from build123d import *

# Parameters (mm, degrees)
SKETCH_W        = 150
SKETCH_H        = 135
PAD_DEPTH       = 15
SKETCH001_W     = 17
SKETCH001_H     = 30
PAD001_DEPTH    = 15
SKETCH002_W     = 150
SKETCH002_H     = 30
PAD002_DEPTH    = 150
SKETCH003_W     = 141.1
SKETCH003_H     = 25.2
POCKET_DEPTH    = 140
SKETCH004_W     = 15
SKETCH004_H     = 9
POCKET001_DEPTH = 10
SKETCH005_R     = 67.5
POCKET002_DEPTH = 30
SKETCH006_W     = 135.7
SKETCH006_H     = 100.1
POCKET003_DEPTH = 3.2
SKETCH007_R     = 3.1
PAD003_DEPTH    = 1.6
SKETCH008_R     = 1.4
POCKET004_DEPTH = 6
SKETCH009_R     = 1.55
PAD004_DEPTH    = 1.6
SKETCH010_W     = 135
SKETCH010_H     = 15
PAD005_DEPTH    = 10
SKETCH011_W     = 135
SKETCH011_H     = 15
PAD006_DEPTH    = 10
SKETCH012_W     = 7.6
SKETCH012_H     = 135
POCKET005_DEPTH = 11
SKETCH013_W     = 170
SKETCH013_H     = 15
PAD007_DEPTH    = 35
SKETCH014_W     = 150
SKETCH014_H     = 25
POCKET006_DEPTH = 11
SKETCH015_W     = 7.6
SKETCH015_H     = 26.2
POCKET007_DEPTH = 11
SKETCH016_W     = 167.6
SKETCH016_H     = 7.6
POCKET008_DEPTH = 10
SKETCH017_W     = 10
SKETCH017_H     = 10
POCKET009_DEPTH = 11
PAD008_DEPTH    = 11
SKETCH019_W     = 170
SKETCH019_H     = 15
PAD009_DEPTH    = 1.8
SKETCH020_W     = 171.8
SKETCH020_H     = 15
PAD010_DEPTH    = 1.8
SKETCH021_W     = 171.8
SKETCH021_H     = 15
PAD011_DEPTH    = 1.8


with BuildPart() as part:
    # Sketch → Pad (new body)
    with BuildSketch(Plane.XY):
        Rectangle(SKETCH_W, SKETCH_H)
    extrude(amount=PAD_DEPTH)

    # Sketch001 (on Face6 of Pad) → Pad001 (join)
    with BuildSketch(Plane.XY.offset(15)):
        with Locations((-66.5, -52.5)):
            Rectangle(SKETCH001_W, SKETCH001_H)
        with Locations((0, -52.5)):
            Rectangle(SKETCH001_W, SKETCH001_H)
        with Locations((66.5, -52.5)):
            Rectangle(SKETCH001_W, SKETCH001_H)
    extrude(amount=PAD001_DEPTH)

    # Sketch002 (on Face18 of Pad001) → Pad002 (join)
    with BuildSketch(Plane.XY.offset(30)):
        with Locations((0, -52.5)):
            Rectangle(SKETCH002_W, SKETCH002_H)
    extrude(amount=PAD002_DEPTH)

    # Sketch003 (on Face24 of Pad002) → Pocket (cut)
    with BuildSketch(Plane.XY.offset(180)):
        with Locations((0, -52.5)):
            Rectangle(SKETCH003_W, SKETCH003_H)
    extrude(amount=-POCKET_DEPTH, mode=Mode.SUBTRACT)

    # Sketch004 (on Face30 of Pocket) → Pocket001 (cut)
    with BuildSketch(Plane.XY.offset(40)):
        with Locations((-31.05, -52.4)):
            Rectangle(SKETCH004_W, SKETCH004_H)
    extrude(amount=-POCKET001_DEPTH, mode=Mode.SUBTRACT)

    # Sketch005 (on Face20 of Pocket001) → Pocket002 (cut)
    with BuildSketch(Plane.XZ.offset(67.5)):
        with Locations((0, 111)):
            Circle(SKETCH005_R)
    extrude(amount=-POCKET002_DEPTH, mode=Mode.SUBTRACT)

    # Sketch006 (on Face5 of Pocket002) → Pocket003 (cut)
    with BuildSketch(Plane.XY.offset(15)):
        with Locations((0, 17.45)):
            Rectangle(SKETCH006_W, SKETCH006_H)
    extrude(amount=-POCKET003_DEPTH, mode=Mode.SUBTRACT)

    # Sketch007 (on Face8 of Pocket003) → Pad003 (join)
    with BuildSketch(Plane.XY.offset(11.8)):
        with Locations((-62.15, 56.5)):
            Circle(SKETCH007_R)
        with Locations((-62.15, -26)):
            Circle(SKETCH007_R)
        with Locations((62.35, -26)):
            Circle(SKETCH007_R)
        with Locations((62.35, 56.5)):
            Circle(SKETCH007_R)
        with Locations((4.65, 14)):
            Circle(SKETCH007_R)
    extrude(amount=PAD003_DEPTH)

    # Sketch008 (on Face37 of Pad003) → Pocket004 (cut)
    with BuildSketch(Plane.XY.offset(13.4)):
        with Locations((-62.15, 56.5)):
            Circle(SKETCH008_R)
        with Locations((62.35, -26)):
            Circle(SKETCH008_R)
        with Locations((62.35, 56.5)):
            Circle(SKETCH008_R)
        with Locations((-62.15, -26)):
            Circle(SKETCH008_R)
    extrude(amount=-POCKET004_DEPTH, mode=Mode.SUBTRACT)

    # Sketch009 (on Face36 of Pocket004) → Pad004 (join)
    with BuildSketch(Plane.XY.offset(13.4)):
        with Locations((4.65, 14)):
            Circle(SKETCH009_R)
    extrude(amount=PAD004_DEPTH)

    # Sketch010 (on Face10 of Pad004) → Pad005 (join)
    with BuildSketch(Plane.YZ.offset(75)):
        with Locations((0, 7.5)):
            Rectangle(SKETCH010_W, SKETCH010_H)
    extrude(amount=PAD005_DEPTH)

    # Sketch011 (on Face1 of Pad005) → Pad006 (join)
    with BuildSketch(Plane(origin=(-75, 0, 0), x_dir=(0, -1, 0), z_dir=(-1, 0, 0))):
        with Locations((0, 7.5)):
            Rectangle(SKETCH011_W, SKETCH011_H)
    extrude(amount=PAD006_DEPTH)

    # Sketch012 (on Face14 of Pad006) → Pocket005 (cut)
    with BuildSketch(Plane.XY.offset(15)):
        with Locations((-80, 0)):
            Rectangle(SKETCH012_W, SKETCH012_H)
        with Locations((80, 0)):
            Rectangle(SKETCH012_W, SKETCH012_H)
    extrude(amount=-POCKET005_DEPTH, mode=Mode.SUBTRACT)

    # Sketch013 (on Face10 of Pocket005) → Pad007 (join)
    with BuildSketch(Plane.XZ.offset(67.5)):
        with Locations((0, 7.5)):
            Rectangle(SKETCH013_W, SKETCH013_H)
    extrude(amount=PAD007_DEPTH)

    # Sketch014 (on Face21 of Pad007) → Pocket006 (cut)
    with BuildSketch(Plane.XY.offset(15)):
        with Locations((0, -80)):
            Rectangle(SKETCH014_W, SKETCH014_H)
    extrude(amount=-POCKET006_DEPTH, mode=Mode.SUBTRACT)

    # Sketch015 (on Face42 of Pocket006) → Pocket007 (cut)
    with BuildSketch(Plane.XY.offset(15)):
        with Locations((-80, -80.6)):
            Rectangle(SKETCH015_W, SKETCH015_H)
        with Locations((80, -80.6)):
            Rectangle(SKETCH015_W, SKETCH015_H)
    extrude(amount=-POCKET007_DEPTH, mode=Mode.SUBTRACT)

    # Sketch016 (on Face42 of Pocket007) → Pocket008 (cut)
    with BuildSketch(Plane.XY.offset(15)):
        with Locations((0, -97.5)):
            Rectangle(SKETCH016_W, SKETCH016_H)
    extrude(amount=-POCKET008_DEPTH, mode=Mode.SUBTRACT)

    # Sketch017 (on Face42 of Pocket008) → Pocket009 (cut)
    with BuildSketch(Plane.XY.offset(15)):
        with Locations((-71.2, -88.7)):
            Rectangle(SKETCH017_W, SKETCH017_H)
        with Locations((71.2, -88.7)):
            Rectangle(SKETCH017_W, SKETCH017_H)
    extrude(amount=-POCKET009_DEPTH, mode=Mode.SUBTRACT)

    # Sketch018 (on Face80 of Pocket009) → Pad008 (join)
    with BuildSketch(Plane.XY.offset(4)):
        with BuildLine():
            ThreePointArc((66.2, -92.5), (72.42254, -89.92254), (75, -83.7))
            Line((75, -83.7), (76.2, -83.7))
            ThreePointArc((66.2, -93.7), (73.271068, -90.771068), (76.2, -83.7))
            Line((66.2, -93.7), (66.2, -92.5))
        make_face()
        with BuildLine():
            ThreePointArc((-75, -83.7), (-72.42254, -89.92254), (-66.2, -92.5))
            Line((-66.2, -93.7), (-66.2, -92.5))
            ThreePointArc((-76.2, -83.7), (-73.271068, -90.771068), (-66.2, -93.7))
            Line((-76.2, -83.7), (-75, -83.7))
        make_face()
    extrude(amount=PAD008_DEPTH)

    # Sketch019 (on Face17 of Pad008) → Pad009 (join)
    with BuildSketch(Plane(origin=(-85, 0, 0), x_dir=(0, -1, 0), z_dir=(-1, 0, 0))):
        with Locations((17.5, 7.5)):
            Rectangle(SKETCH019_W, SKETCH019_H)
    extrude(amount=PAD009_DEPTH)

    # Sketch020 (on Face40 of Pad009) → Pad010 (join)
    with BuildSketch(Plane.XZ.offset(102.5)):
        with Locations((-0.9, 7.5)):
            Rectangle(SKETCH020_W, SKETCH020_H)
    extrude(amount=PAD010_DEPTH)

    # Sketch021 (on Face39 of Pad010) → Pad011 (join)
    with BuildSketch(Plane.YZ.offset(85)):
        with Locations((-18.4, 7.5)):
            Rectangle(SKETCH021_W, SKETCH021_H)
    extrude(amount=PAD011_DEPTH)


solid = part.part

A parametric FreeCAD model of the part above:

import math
import FreeCAD as App
import Part
import Sketcher

V = App.Vector
Q = App.Units.Quantity

doc = App.newDocument("Part")
params = doc.addObject("Spreadsheet::Sheet", "Params")
for row, (alias, value) in enumerate([
    ("sketch1_width", "150 mm"),
    ("sketch1_height", "135 mm"),
    ("pad1_length", "15 mm"),
    ("sketch2_width", "17 mm"),
    ("sketch2_height", "30 mm"),
    ("pad2_length", "15 mm"),
    ("sketch3_width", "150 mm"),
    ("sketch3_height", "30 mm"),
    ("pad3_length", "150 mm"),
    ("sketch4_width", "141.1 mm"),
    ("sketch4_height", "25.2 mm"),
    ("pocket1_length", "140 mm"),
    ("sketch5_width", "15 mm"),
    ("sketch5_height", "9 mm"),
    ("pocket2_length", "10 mm"),
    ("sketch6_diameter", "135 mm"),
    ("pocket3_length", "30 mm"),
    ("sketch7_width", "135.7 mm"),
    ("sketch7_height", "100.1 mm"),
    ("pocket4_length", "3.2 mm"),
    ("sketch8_diameter", "6.2 mm"),
    ("pad4_length", "1.6 mm"),
    ("sketch9_diameter", "2.8 mm"),
    ("pocket5_length", "6 mm"),
    ("sketch10_diameter", "3.1 mm"),
    ("pad5_length", "1.6 mm"),
    ("sketch11_width", "135 mm"),
    ("sketch11_height", "15 mm"),
    ("pad6_length", "10 mm"),
    ("sketch12_width", "135 mm"),
    ("sketch12_height", "15 mm"),
    ("pad7_length", "10 mm"),
    ("sketch13_height", "135 mm"),
    ("sketch13_width", "7.6 mm"),
    ("pocket6_length", "11 mm"),
    ("sketch14_width", "170 mm"),
    ("sketch14_height", "15 mm"),
    ("pad8_length", "35 mm"),
    ("sketch15_width", "150 mm"),
    ("sketch15_height", "25 mm"),
    ("pocket7_length", "11 mm"),
    ("sketch16_width", "7.6 mm"),
    ("sketch16_height", "26.2 mm"),
    ("pocket8_length", "11 mm"),
    ("sketch17_width", "167.6 mm"),
    ("sketch17_height", "7.6 mm"),
    ("pocket9_length", "10 mm"),
    ("sketch18_width", "10 mm"),
    ("pocket10_length", "11 mm"),
    ("sketch19_radius", "9.999999 mm"),
    ("sketch19_radius2", "8.799999 mm"),
    ("pad9_length", "11 mm"),
    ("sketch20_width", "170 mm"),
    ("sketch20_height", "15 mm"),
    ("pad10_length", "1.8 mm"),
    ("sketch21_height", "15 mm"),
    ("sketch21_width", "171.8 mm"),
    ("pad11_length", "1.8 mm"),
    ("sketch22_height", "15 mm"),
    ("sketch22_width", "171.8 mm"),
    ("pad12_length", "1.8 mm"),
], start=1):
    params.set(f"A{row}", alias)
    params.set(f"B{row}", "=" + value)
    params.setAlias(f"B{row}", alias)

body = doc.addObject("PartDesign::Body", "Body")

sketch1 = body.newObject("Sketcher::SketchObject", "Sketch")
sketch1.AttachmentSupport = (doc.getObject("XY_Plane"), [""])
sketch1.MapMode = "FlatFace"
sketch1.addGeometry([
    Part.LineSegment(V(-75, 67.5, 0), V(-75, -67.5, 0)),
    Part.LineSegment(V(-75, -67.5, 0), V(75, -67.5, 0)),
    Part.LineSegment(V(75, -67.5, 0), V(75, 67.5, 0)),
    Part.LineSegment(V(75, 67.5, 0), V(-75, 67.5, 0)),
], False)
sketch1.addConstraint([
    Sketcher.Constraint("Coincident", 0, 2, 1, 1),
    Sketcher.Constraint("Coincident", 1, 2, 2, 1),
    Sketcher.Constraint("Coincident", 2, 2, 3, 1),
    Sketcher.Constraint("Coincident", 3, 2, 0, 1),
    Sketcher.Constraint("Vertical", 0),
    Sketcher.Constraint("Horizontal", 1),
    Sketcher.Constraint("Vertical", 2),
    Sketcher.Constraint("Horizontal", 3),
    Sketcher.Constraint("Symmetric", 0, 2, 2, 2, -1, 1),
    Sketcher.Constraint("DistanceX", 1, 1, 1, 2, Q("150 mm")),
    Sketcher.Constraint("DistanceY", 0, 2, 0, 1, Q("135 mm")),
])
sketch1.setExpression("Constraints[9]", "Params.sketch1_width")
sketch1.setExpression("Constraints[10]", "Params.sketch1_height")
pad1 = body.newObject("PartDesign::Pad", "Pad")
pad1.Profile = sketch1
pad1.setExpression("Length", "Params.pad1_length")

sketch2 = body.newObject("Sketcher::SketchObject", "Sketch001")
sketch2.AttachmentSupport = (doc.getObject("XY_Plane"), [""])
sketch2.MapMode = "FlatFace"
sketch2.AttachmentOffset = App.Placement(V(0, 0, 15), App.Rotation())
sketch2.addGeometry([
    Part.LineSegment(V(-75, -37.5, 0), V(-75, -67.5, 0)),
    Part.LineSegment(V(-75, -67.5, 0), V(-58, -67.5, 0)),
    Part.LineSegment(V(-58, -67.5, 0), V(-58, -37.5, 0)),
    Part.LineSegment(V(-58, -37.5, 0), V(-75, -37.5, 0)),
    Part.LineSegment(V(-8.5, -37.5, 0), V(-8.5, -67.5, 0)),
    Part.LineSegment(V(-8.5, -67.5, 0), V(8.5, -67.5, 0)),
    Part.LineSegment(V(8.5, -67.5, 0), V(8.5, -37.5, 0)),
    Part.LineSegment(V(8.5, -37.5, 0), V(-8.5, -37.5, 0)),
    Part.LineSegment(V(58, -37.5, 0), V(58, -67.5, 0)),
    Part.LineSegment(V(58, -67.5, 0), V(75, -67.5, 0)),
    Part.LineSegment(V(75, -67.5, 0), V(75, -37.5, 0)),
    Part.LineSegment(V(75, -37.5, 0), V(58, -37.5, 0)),
], False)
sketch2.addConstraint([
    Sketcher.Constraint("Coincident", 0, 2, 1, 1),
    Sketcher.Constraint("Coincident", 1, 2, 2, 1),
    Sketcher.Constraint("Coincident", 2, 2, 3, 1),
    Sketcher.Constraint("Coincident", 3, 2, 0, 1),
    Sketcher.Constraint("Coincident", 4, 2, 5, 1),
    Sketcher.Constraint("Coincident", 5, 2, 6, 1),
    Sketcher.Constraint("Coincident", 6, 2, 7, 1),
    Sketcher.Constraint("Coincident", 7, 2, 4, 1),
    Sketcher.Constraint("Coincident", 8, 2, 9, 1),
    Sketcher.Constraint("Coincident", 9, 2, 10, 1),
    Sketcher.Constraint("Coincident", 10, 2, 11, 1),
    Sketcher.Constraint("Coincident", 11, 2, 8, 1),
    Sketcher.Constraint("Vertical", 0),
    Sketcher.Constraint("Horizontal", 1),
    Sketcher.Constraint("Vertical", 2),
    Sketcher.Constraint("Horizontal", 3),
    Sketcher.Constraint("Vertical", 4),
    Sketcher.Constraint("Horizontal", 5),
    Sketcher.Constraint("Vertical", 6),
    Sketcher.Constraint("Horizontal", 7),
    Sketcher.Constraint("Vertical", 8),
    Sketcher.Constraint("Horizontal", 9),
    Sketcher.Constraint("Vertical", 10),
    Sketcher.Constraint("Horizontal", 11),
    Sketcher.Constraint("Symmetric", 1, 2, 8, 2, -2),
    Sketcher.Constraint("Symmetric", 3, 2, 10, 2, -2),
    Sketcher.Constraint("Horizontal", 1, 2, 4, 2),
    Sketcher.Constraint("Horizontal", 3, 2, 6, 2),
    Sketcher.Constraint("Equal", 3, 5),
    Sketcher.Constraint("DistanceX", 1, 1, 1, 2, Q("17 mm")),
    Sketcher.Constraint("DistanceY", 0, 2, 0, 1, Q("30 mm")),
    Sketcher.Constraint("DistanceX", 0, 2, -1, 1, Q("75 mm")),
    Sketcher.Constraint("DistanceY", 0, 2, -1, 1, Q("67.5 mm")),
    Sketcher.Constraint("DistanceX", 4, 2, -1, 1, Q("8.5 mm")),
])
sketch2.setExpression("Constraints[29]", "Params.sketch2_width")
sketch2.setExpression("Constraints[30]", "Params.sketch2_height")
pad2 = body.newObject("PartDesign::Pad", "Pad001")
pad2.Profile = sketch2
pad2.setExpression("Length", "Params.pad2_length")

sketch3 = body.newObject("Sketcher::SketchObject", "Sketch002")
sketch3.AttachmentSupport = (doc.getObject("XY_Plane"), [""])
sketch3.MapMode = "FlatFace"
sketch3.AttachmentOffset = App.Placement(V(0, 0, 30), App.Rotation())
sketch3.addGeometry([
    Part.LineSegment(V(-75, -37.5, 0), V(-75, -67.5, 0)),
    Part.LineSegment(V(-75, -67.5, 0), V(75, -67.5, 0)),
    Part.LineSegment(V(75, -67.5, 0), V(75, -37.5, 0)),
    Part.LineSegment(V(75, -37.5, 0), V(-75, -37.5, 0)),
], False)
sketch3.addConstraint([
    Sketcher.Constraint("Coincident", 0, 2, 1, 1),
    Sketcher.Constraint("Coincident", 1, 2, 2, 1),
    Sketcher.Constraint("Coincident", 2, 2, 3, 1),
    Sketcher.Constraint("Coincident", 3, 2, 0, 1),
    Sketcher.Constraint("Vertical", 0),
    Sketcher.Constraint("Horizontal", 1),
    Sketcher.Constraint("Vertical", 2),
    Sketcher.Constraint("Horizontal", 3),
    Sketcher.Constraint("DistanceX", 1, 1, 1, 2, Q("150 mm")),
    Sketcher.Constraint("DistanceY", 0, 2, 0, 1, Q("30 mm")),
    Sketcher.Constraint("DistanceX", 0, 2, -1, 1, Q("75 mm")),
    Sketcher.Constraint("DistanceY", 0, 2, -1, 1, Q("67.5 mm")),
])
sketch3.setExpression("Constraints[8]", "Params.sketch3_width")
sketch3.setExpression("Constraints[9]", "Params.sketch3_height")
pad3 = body.newObject("PartDesign::Pad", "Pad002")
pad3.Profile = sketch3
pad3.setExpression("Length", "Params.pad3_length")

sketch4 = body.newObject("Sketcher::SketchObject", "Sketch003")
sketch4.AttachmentSupport = (doc.getObject("XY_Plane"), [""])
sketch4.MapMode = "FlatFace"
sketch4.AttachmentOffset = App.Placement(V(0, 0, 180), App.Rotation())
sketch4.addGeometry([
    Part.LineSegment(V(-70.55, -39.9, 0), V(-70.55, -65.1, 0)),
    Part.LineSegment(V(-70.55, -65.1, 0), V(70.55, -65.1, 0)),
    Part.LineSegment(V(70.55, -65.1, 0), V(70.55, -39.9, 0)),
    Part.LineSegment(V(70.55, -39.9, 0), V(-70.55, -39.9, 0)),
], False)
sketch4.addConstraint([
    Sketcher.Constraint("Coincident", 0, 2, 1, 1),
    Sketcher.Constraint("Coincident", 1, 2, 2, 1),
    Sketcher.Constraint("Coincident", 2, 2, 3, 1),
    Sketcher.Constraint("Coincident", 3, 2, 0, 1),
    Sketcher.Constraint("Vertical", 0),
    Sketcher.Constraint("Horizontal", 1),
    Sketcher.Constraint("Vertical", 2),
    Sketcher.Constraint("Horizontal", 3),
    Sketcher.Constraint("DistanceX", 1, 1, 1, 2, Q("141.1 mm")),
    Sketcher.Constraint("DistanceY", 0, 2, 0, 1, Q("25.2 mm")),
    Sketcher.Constraint("DistanceY", 0, 2, -1, 1, Q("65.1 mm")),
    Sketcher.Constraint("DistanceX", 0, 2, -1, 1, Q("70.55 mm")),
])
sketch4.setExpression("Constraints[8]", "Params.sketch4_width")
sketch4.setExpression("Constraints[9]", "Params.sketch4_height")
pocket1 = body.newObject("PartDesign::Pocket", "Pocket")
pocket1.Profile = sketch4
pocket1.setExpression("Length", "Params.pocket1_length")

sketch5 = body.newObject("Sketcher::SketchObject", "Sketch004")
sketch5.AttachmentSupport = (doc.getObject("XY_Plane"), [""])
sketch5.MapMode = "FlatFace"
sketch5.AttachmentOffset = App.Placement(V(0, 0, 40), App.Rotation())
sketch5.addGeometry([
    Part.LineSegment(V(-38.55, -47.9, 0), V(-38.55, -56.9, 0)),
    Part.LineSegment(V(-38.55, -56.9, 0), V(-23.55, -56.9, 0)),
    Part.LineSegment(V(-23.55, -56.9, 0), V(-23.55, -47.9, 0)),
    Part.LineSegment(V(-23.55, -47.9, 0), V(-38.55, -47.9, 0)),
], False)
sketch5.addConstraint([
    Sketcher.Constraint("Coincident", 0, 2, 1, 1),
    Sketcher.Constraint("Coincident", 1, 2, 2, 1),
    Sketcher.Constraint("Coincident", 2, 2, 3, 1),
    Sketcher.Constraint("Coincident", 3, 2, 0, 1),
    Sketcher.Constraint("Vertical", 0),
    Sketcher.Constraint("Horizontal", 1),
    Sketcher.Constraint("Vertical", 2),
    Sketcher.Constraint("Horizontal", 3),
    Sketcher.Constraint("DistanceX", 1, 1, 1, 2, Q("15 mm")),
    Sketcher.Constraint("DistanceY", 0, 2, 0, 1, Q("9 mm")),
    Sketcher.Constraint("DistanceY", 0, 2, -1, 1, Q("56.9 mm")),
    Sketcher.Constraint("DistanceX", 0, 2, -1, 1, Q("38.55 mm")),
])
sketch5.setExpression("Constraints[8]", "Params.sketch5_width")
sketch5.setExpression("Constraints[9]", "Params.sketch5_height")
pocket2 = body.newObject("PartDesign::Pocket", "Pocket001")
pocket2.Profile = sketch5
pocket2.setExpression("Length", "Params.pocket2_length")

sketch6 = body.newObject("Sketcher::SketchObject", "Sketch005")
sketch6.AttachmentSupport = (doc.getObject("XZ_Plane"), [""])
sketch6.MapMode = "FlatFace"
sketch6.AttachmentOffset = App.Placement(V(0, 0, 67.5), App.Rotation())
sketch6.addGeometry(Part.Circle(V(0, 111, 0), V(0, 0, 1), 67.5), False)
sketch6.addConstraint([
    Sketcher.Constraint("PointOnObject", 0, 3, -2),
    Sketcher.Constraint("Diameter", 0, Q("135 mm")),
    Sketcher.Constraint("DistanceY", -1, 1, 0, 3, Q("111 mm")),
])
sketch6.setExpression("Constraints[1]", "Params.sketch6_diameter")
pocket3 = body.newObject("PartDesign::Pocket", "Pocket002")
pocket3.Profile = sketch6
pocket3.setExpression("Length", "Params.pocket3_length")

sketch7 = body.newObject("Sketcher::SketchObject", "Sketch006")
sketch7.AttachmentSupport = (doc.getObject("XY_Plane"), [""])
sketch7.MapMode = "FlatFace"
sketch7.AttachmentOffset = App.Placement(V(0, 0, 15), App.Rotation())
sketch7.addGeometry([
    Part.LineSegment(V(-67.85, 67.5, 0), V(-67.85, -32.6, 0)),
    Part.LineSegment(V(-67.85, -32.6, 0), V(67.85, -32.6, 0)),
    Part.LineSegment(V(67.85, -32.6, 0), V(67.85, 67.5, 0)),
    Part.LineSegment(V(67.85, 67.5, 0), V(-67.85, 67.5, 0)),
], False)
sketch7.addConstraint([
    Sketcher.Constraint("Coincident", 0, 2, 1, 1),
    Sketcher.Constraint("Coincident", 1, 2, 2, 1),
    Sketcher.Constraint("Coincident", 2, 2, 3, 1),
    Sketcher.Constraint("Coincident", 3, 2, 0, 1),
    Sketcher.Constraint("Vertical", 0),
    Sketcher.Constraint("Horizontal", 1),
    Sketcher.Constraint("Vertical", 2),
    Sketcher.Constraint("Horizontal", 3),
    Sketcher.Constraint("DistanceX", 1, 1, 1, 2, Q("135.7 mm")),
    Sketcher.Constraint("DistanceY", 0, 2, 0, 1, Q("100.1 mm")),
    Sketcher.Constraint("DistanceY", 0, 2, -1, 1, Q("32.6 mm")),
    Sketcher.Constraint("DistanceX", 0, 2, -1, 1, Q("67.85 mm")),
])
sketch7.setExpression("Constraints[8]", "Params.sketch7_width")
sketch7.setExpression("Constraints[9]", "Params.sketch7_height")
pocket4 = body.newObject("PartDesign::Pocket", "Pocket003")
pocket4.Profile = sketch7
pocket4.setExpression("Length", "Params.pocket4_length")

sketch8 = body.newObject("Sketcher::SketchObject", "Sketch007")
sketch8.AttachmentSupport = (doc.getObject("XY_Plane"), [""])
sketch8.MapMode = "FlatFace"
sketch8.AttachmentOffset = App.Placement(V(0, 0, 11.8), App.Rotation())
sketch8.addGeometry([
    Part.Circle(V(-62.15, 56.5, 0), V(0, 0, 1), 3.1),
    Part.Circle(V(-62.15, -26, 0), V(0, 0, 1), 3.1),
    Part.Circle(V(62.35, -26, 0), V(0, 0, 1), 3.1),
    Part.Circle(V(62.35, 56.5, 0), V(0, 0, 1), 3.1),
    Part.Circle(V(4.65, 14, 0), V(0, 0, 1), 3.1),
], False)
sketch8.addConstraint([
    Sketcher.Constraint("Equal", 0, 1),
    Sketcher.Constraint("Equal", 1, 2),
    Sketcher.Constraint("Equal", 2, 3),
    Sketcher.Constraint("Equal", 3, 4),
    Sketcher.Constraint("Horizontal", 1, 3, 2, 3),
    Sketcher.Constraint("Horizontal", 0, 3, 3, 3),
    Sketcher.Constraint("Vertical", 0, 3, 1, 3),
    Sketcher.Constraint("Vertical", 2, 3, 3, 3),
    Sketcher.Constraint("Diameter", 0, Q("6.2 mm")),
    Sketcher.Constraint("DistanceY", 1, 3, -1, 1, Q("26 mm")),
    Sketcher.Constraint("DistanceY", -1, 1, 4, 3, Q("14 mm")),
    Sketcher.Constraint("DistanceY", -1, 1, 0, 3, Q("56.5 mm")),
    Sketcher.Constraint("DistanceX", 1, 3, 2, 3, Q("124.5 mm")),
    Sketcher.Constraint("DistanceX", 4, 3, 2, 3, Q("57.7 mm")),
    Sketcher.Constraint("DistanceX", 0, 3, -1, 1, Q("62.15 mm")),
])
sketch8.setExpression("Constraints[8]", "Params.sketch8_diameter")
pad4 = body.newObject("PartDesign::Pad", "Pad003")
pad4.Profile = sketch8
pad4.setExpression("Length", "Params.pad4_length")

sketch9 = body.newObject("Sketcher::SketchObject", "Sketch008")
sketch9.AttachmentSupport = (doc.getObject("XY_Plane"), [""])
sketch9.MapMode = "FlatFace"
sketch9.AttachmentOffset = App.Placement(V(0, 0, 13.4), App.Rotation())
sketch9.addGeometry([
    Part.Circle(V(-62.15, 56.5, 0), V(0, 0, 1), 1.4),
    Part.Circle(V(62.35, -26, 0), V(0, 0, 1), 1.4),
    Part.Circle(V(62.35, 56.5, 0), V(0, 0, 1), 1.4),
    Part.Circle(V(-62.15, -26, 0), V(0, 0, 1), 1.4),
], False)
sketch9.addConstraint([
    Sketcher.Constraint("Equal", 0, 1),
    Sketcher.Constraint("Equal", 1, 2),
    Sketcher.Constraint("Equal", 2, 3),
    Sketcher.Constraint("Horizontal", 0, 3, 2, 3),
    Sketcher.Constraint("Horizontal", 1, 3, 3, 3),
    Sketcher.Constraint("Vertical", 1, 3, 2, 3),
    Sketcher.Constraint("Vertical", 0, 3, 3, 3),
    Sketcher.Constraint("Diameter", 0, Q("2.8 mm")),
    Sketcher.Constraint("DistanceY", 1, 3, -1, 1, Q("26 mm")),
    Sketcher.Constraint("DistanceY", -1, 1, 0, 3, Q("56.5 mm")),
    Sketcher.Constraint("DistanceX", 0, 3, 1, 3, Q("124.5 mm")),
    Sketcher.Constraint("DistanceX", 0, 3, -1, 1, Q("62.15 mm")),
])
sketch9.setExpression("Constraints[7]", "Params.sketch9_diameter")
pocket5 = body.newObject("PartDesign::Pocket", "Pocket004")
pocket5.Profile = sketch9
pocket5.setExpression("Length", "Params.pocket5_length")

sketch10 = body.newObject("Sketcher::SketchObject", "Sketch009")
sketch10.AttachmentSupport = (doc.getObject("XY_Plane"), [""])
sketch10.MapMode = "FlatFace"
sketch10.AttachmentOffset = App.Placement(V(0, 0, 13.4), App.Rotation())
sketch10.addGeometry(Part.Circle(V(4.65, 14, 0), V(0, 0, 1), 1.55), False)
sketch10.addConstraint([
    Sketcher.Constraint("Diameter", 0, Q("3.1 mm")),
    Sketcher.Constraint("DistanceY", -1, 1, 0, 3, Q("14 mm")),
    Sketcher.Constraint("DistanceX", -1, 1, 0, 3, Q("4.65 mm")),
])
sketch10.setExpression("Constraints[0]", "Params.sketch10_diameter")
pad5 = body.newObject("PartDesign::Pad", "Pad004")
pad5.Profile = sketch10
pad5.setExpression("Length", "Params.pad5_length")

sketch11 = body.newObject("Sketcher::SketchObject", "Sketch010")
sketch11.AttachmentSupport = (doc.getObject("YZ_Plane"), [""])
sketch11.MapMode = "FlatFace"
sketch11.AttachmentOffset = App.Placement(V(0, 0, 75), App.Rotation())
sketch11.addGeometry([
    Part.LineSegment(V(-67.5, 15, 0), V(-67.5, 0, 0)),
    Part.LineSegment(V(-67.5, 0, 0), V(67.5, 0, 0)),
    Part.LineSegment(V(67.5, 0, 0), V(67.5, 15, 0)),
    Part.LineSegment(V(67.5, 15, 0), V(-67.5, 15, 0)),
], False)
sketch11.addConstraint([
    Sketcher.Constraint("Coincident", 0, 2, 1, 1),
    Sketcher.Constraint("Coincident", 1, 2, 2, 1),
    Sketcher.Constraint("Coincident", 2, 2, 3, 1),
    Sketcher.Constraint("Coincident", 3, 2, 0, 1),
    Sketcher.Constraint("Vertical", 0),
    Sketcher.Constraint("Horizontal", 1),
    Sketcher.Constraint("Vertical", 2),
    Sketcher.Constraint("Horizontal", 3),
    Sketcher.Constraint("Symmetric", 0, 2, 1, 2, -1, 1),
    Sketcher.Constraint("DistanceX", 1, 1, 1, 2, Q("135 mm")),
    Sketcher.Constraint("DistanceY", 0, 2, 0, 1, Q("15 mm")),
])
sketch11.setExpression("Constraints[9]", "Params.sketch11_width")
sketch11.setExpression("Constraints[10]", "Params.sketch11_height")
pad6 = body.newObject("PartDesign::Pad", "Pad005")
pad6.Profile = sketch11
pad6.setExpression("Length", "Params.pad6_length")

sketch12 = body.newObject("Sketcher::SketchObject", "Sketch011")
sketch12.AttachmentSupport = (doc.getObject("YZ_Plane"), [""])
sketch12.MapMode = "FlatFace"
sketch12.AttachmentOffset = App.Placement(V(0, 0, -75), App.Rotation())
sketch12.addGeometry([
    Part.LineSegment(V(67.5, 15, 0), V(67.5, 0, 0)),
    Part.LineSegment(V(67.5, 0, 0), V(-67.5, 0, 0)),
    Part.LineSegment(V(-67.5, 0, 0), V(-67.5, 15, 0)),
    Part.LineSegment(V(-67.5, 15, 0), V(67.5, 15, 0)),
], False)
sketch12.addConstraint([
    Sketcher.Constraint("Coincident", 0, 2, 1, 1),
    Sketcher.Constraint("Coincident", 1, 2, 2, 1),
    Sketcher.Constraint("Coincident", 2, 2, 3, 1),
    Sketcher.Constraint("Coincident", 3, 2, 0, 1),
    Sketcher.Constraint("Vertical", 0),
    Sketcher.Constraint("Horizontal", 1),
    Sketcher.Constraint("Vertical", 2),
    Sketcher.Constraint("Horizontal", 3),
    Sketcher.Constraint("Symmetric", 0, 2, 1, 2, -1, 1),
    Sketcher.Constraint("DistanceX", 1, 2, 1, 1, Q("135 mm")),
    Sketcher.Constraint("DistanceY", 0, 2, 0, 1, Q("15 mm")),
])
sketch12.setExpression("Constraints[9]", "Params.sketch12_width")
sketch12.setExpression("Constraints[10]", "Params.sketch12_height")
pad7 = body.newObject("PartDesign::Pad", "Pad006")
pad7.Profile = sketch12
pad7.setExpression("Length", "Params.pad7_length")
pad7.Reversed = True

sketch13 = body.newObject("Sketcher::SketchObject", "Sketch012")
sketch13.AttachmentSupport = (doc.getObject("XY_Plane"), [""])
sketch13.MapMode = "FlatFace"
sketch13.AttachmentOffset = App.Placement(V(0, 0, 15), App.Rotation())
sketch13.addGeometry([
    Part.LineSegment(V(-83.8, 67.5, 0), V(-83.8, -67.5, 0)),
    Part.LineSegment(V(-83.8, -67.5, 0), V(-76.2, -67.5, 0)),
    Part.LineSegment(V(-76.2, -67.5, 0), V(-76.2, 67.5, 0)),
    Part.LineSegment(V(-76.2, 67.5, 0), V(-83.8, 67.5, 0)),
    Part.LineSegment(V(76.2, 67.5, 0), V(76.2, -67.5, 0)),
    Part.LineSegment(V(76.2, -67.5, 0), V(83.8, -67.5, 0)),
    Part.LineSegment(V(83.8, -67.5, 0), V(83.8, 67.5, 0)),
    Part.LineSegment(V(83.8, 67.5, 0), V(76.2, 67.5, 0)),
], False)
sketch13.addConstraint([
    Sketcher.Constraint("Coincident", 0, 2, 1, 1),
    Sketcher.Constraint("Coincident", 1, 2, 2, 1),
    Sketcher.Constraint("Coincident", 2, 2, 3, 1),
    Sketcher.Constraint("Coincident", 3, 2, 0, 1),
    Sketcher.Constraint("Coincident", 4, 2, 5, 1),
    Sketcher.Constraint("Coincident", 5, 2, 6, 1),
    Sketcher.Constraint("Coincident", 6, 2, 7, 1),
    Sketcher.Constraint("Coincident", 7, 2, 4, 1),
    Sketcher.Constraint("Vertical", 0),
    Sketcher.Constraint("Horizontal", 1),
    Sketcher.Constraint("Vertical", 2),
    Sketcher.Constraint("Horizontal", 3),
    Sketcher.Constraint("Vertical", 4),
    Sketcher.Constraint("Horizontal", 5),
    Sketcher.Constraint("Vertical", 6),
    Sketcher.Constraint("Horizontal", 7),
    Sketcher.Constraint("Symmetric", 2, 2, 4, 2, -1, 1),
    Sketcher.Constraint("Symmetric", 0, 2, 6, 2, -1, 1),
    Sketcher.Constraint("Horizontal", 1, 2, 4, 2),
    Sketcher.Constraint("DistanceY", 0, 2, 0, 1, Q("135 mm")),
    Sketcher.Constraint("DistanceX", 1, 1, 1, 2, Q("7.6 mm")),
    Sketcher.Constraint("DistanceX", 0, 2, 4, 2, Q("160 mm")),
])
sketch13.setExpression("Constraints[19]", "Params.sketch13_height")
sketch13.setExpression("Constraints[20]", "Params.sketch13_width")
pocket6 = body.newObject("PartDesign::Pocket", "Pocket005")
pocket6.Profile = sketch13
pocket6.setExpression("Length", "Params.pocket6_length")

sketch14 = body.newObject("Sketcher::SketchObject", "Sketch013")
sketch14.AttachmentSupport = (doc.getObject("XZ_Plane"), [""])
sketch14.MapMode = "FlatFace"
sketch14.AttachmentOffset = App.Placement(V(0, 0, 67.5), App.Rotation())
sketch14.addGeometry([
    Part.LineSegment(V(-85, 15, 0), V(-85, 0, 0)),
    Part.LineSegment(V(-85, 0, 0), V(85, 0, 0)),
    Part.LineSegment(V(85, 0, 0), V(85, 15, 0)),
    Part.LineSegment(V(85, 15, 0), V(-85, 15, 0)),
], False)
sketch14.addConstraint([
    Sketcher.Constraint("Coincident", 0, 2, 1, 1),
    Sketcher.Constraint("Coincident", 1, 2, 2, 1),
    Sketcher.Constraint("Coincident", 2, 2, 3, 1),
    Sketcher.Constraint("Coincident", 3, 2, 0, 1),
    Sketcher.Constraint("Vertical", 0),
    Sketcher.Constraint("Horizontal", 1),
    Sketcher.Constraint("Vertical", 2),
    Sketcher.Constraint("Horizontal", 3),
    Sketcher.Constraint("Symmetric", 0, 2, 1, 2, -1, 1),
    Sketcher.Constraint("DistanceX", 1, 1, 1, 2, Q("170 mm")),
    Sketcher.Constraint("DistanceY", 0, 2, 0, 1, Q("15 mm")),
])
sketch14.setExpression("Constraints[9]", "Params.sketch14_width")
sketch14.setExpression("Constraints[10]", "Params.sketch14_height")
pad8 = body.newObject("PartDesign::Pad", "Pad007")
pad8.Profile = sketch14
pad8.setExpression("Length", "Params.pad8_length")

sketch15 = body.newObject("Sketcher::SketchObject", "Sketch014")
sketch15.AttachmentSupport = (doc.getObject("XY_Plane"), [""])
sketch15.MapMode = "FlatFace"
sketch15.AttachmentOffset = App.Placement(V(0, 0, 15), App.Rotation())
sketch15.addGeometry([
    Part.LineSegment(V(-75, -67.5, 0), V(-75, -92.5, 0)),
    Part.LineSegment(V(-75, -92.5, 0), V(75, -92.5, 0)),
    Part.LineSegment(V(75, -92.5, 0), V(75, -67.5, 0)),
    Part.LineSegment(V(75, -67.5, 0), V(-75, -67.5, 0)),
], False)
sketch15.addConstraint([
    Sketcher.Constraint("Coincident", 0, 2, 1, 1),
    Sketcher.Constraint("Coincident", 1, 2, 2, 1),
    Sketcher.Constraint("Coincident", 2, 2, 3, 1),
    Sketcher.Constraint("Coincident", 3, 2, 0, 1),
    Sketcher.Constraint("Vertical", 0),
    Sketcher.Constraint("Horizontal", 1),
    Sketcher.Constraint("Vertical", 2),
    Sketcher.Constraint("Horizontal", 3),
    Sketcher.Constraint("DistanceX", 1, 1, 1, 2, Q("150 mm")),
    Sketcher.Constraint("DistanceY", 0, 2, 0, 1, Q("25 mm")),
    Sketcher.Constraint("DistanceX", 0, 2, -1, 1, Q("75 mm")),
    Sketcher.Constraint("DistanceY", 0, 2, -1, 1, Q("92.5 mm")),
])
sketch15.setExpression("Constraints[8]", "Params.sketch15_width")
sketch15.setExpression("Constraints[9]", "Params.sketch15_height")
pocket7 = body.newObject("PartDesign::Pocket", "Pocket006")
pocket7.Profile = sketch15
pocket7.setExpression("Length", "Params.pocket7_length")

sketch16 = body.newObject("Sketcher::SketchObject", "Sketch015")
sketch16.AttachmentSupport = (doc.getObject("XY_Plane"), [""])
sketch16.MapMode = "FlatFace"
sketch16.AttachmentOffset = App.Placement(V(0, 0, 15), App.Rotation())
sketch16.addGeometry([
    Part.LineSegment(V(-83.8, -67.5, 0), V(-83.8, -93.7, 0)),
    Part.LineSegment(V(-83.8, -93.7, 0), V(-76.2, -93.7, 0)),
    Part.LineSegment(V(-76.2, -93.7, 0), V(-76.2, -67.5, 0)),
    Part.LineSegment(V(-76.2, -67.5, 0), V(-83.8, -67.5, 0)),
    Part.LineSegment(V(76.2, -67.5, 0), V(76.2, -93.7, 0)),
    Part.LineSegment(V(76.2, -93.7, 0), V(83.8, -93.7, 0)),
    Part.LineSegment(V(83.8, -93.7, 0), V(83.8, -67.5, 0)),
    Part.LineSegment(V(83.8, -67.5, 0), V(76.2, -67.5, 0)),
], False)
sketch16.addConstraint([
    Sketcher.Constraint("Coincident", 0, 2, 1, 1),
    Sketcher.Constraint("Coincident", 1, 2, 2, 1),
    Sketcher.Constraint("Coincident", 2, 2, 3, 1),
    Sketcher.Constraint("Coincident", 3, 2, 0, 1),
    Sketcher.Constraint("Coincident", 4, 2, 5, 1),
    Sketcher.Constraint("Coincident", 5, 2, 6, 1),
    Sketcher.Constraint("Coincident", 6, 2, 7, 1),
    Sketcher.Constraint("Coincident", 7, 2, 4, 1),
    Sketcher.Constraint("Vertical", 0),
    Sketcher.Constraint("Horizontal", 1),
    Sketcher.Constraint("Vertical", 2),
    Sketcher.Constraint("Horizontal", 3),
    Sketcher.Constraint("Vertical", 4),
    Sketcher.Constraint("Horizontal", 5),
    Sketcher.Constraint("Vertical", 6),
    Sketcher.Constraint("Horizontal", 7),
    Sketcher.Constraint("Symmetric", 1, 2, 4, 2, -2),
    Sketcher.Constraint("Symmetric", 3, 2, 6, 2, -2),
    Sketcher.Constraint("DistanceX", 1, 1, 1, 2, Q("7.6 mm")),
    Sketcher.Constraint("DistanceY", 0, 2, 0, 1, Q("26.2 mm")),
    Sketcher.Constraint("DistanceX", 0, 2, 4, 2, Q("160 mm")),
    Sketcher.Constraint("DistanceY", 0, 2, -1, 1, Q("93.7 mm")),
])
sketch16.setExpression("Constraints[18]", "Params.sketch16_width")
sketch16.setExpression("Constraints[19]", "Params.sketch16_height")
pocket8 = body.newObject("PartDesign::Pocket", "Pocket007")
pocket8.Profile = sketch16
pocket8.setExpression("Length", "Params.pocket8_length")

sketch17 = body.newObject("Sketcher::SketchObject", "Sketch016")
sketch17.AttachmentSupport = (doc.getObject("XY_Plane"), [""])
sketch17.MapMode = "FlatFace"
sketch17.AttachmentOffset = App.Placement(V(0, 0, 15), App.Rotation())
sketch17.addGeometry([
    Part.LineSegment(V(-83.8, -93.7, 0), V(-83.8, -101.3, 0)),
    Part.LineSegment(V(-83.8, -101.3, 0), V(83.8, -101.3, 0)),
    Part.LineSegment(V(83.8, -101.3, 0), V(83.8, -93.7, 0)),
    Part.LineSegment(V(83.8, -93.7, 0), V(-83.8, -93.7, 0)),
], False)
sketch17.addConstraint([
    Sketcher.Constraint("Coincident", 0, 2, 1, 1),
    Sketcher.Constraint("Coincident", 1, 2, 2, 1),
    Sketcher.Constraint("Coincident", 2, 2, 3, 1),
    Sketcher.Constraint("Coincident", 3, 2, 0, 1),
    Sketcher.Constraint("Vertical", 0),
    Sketcher.Constraint("Horizontal", 1),
    Sketcher.Constraint("Vertical", 2),
    Sketcher.Constraint("Horizontal", 3),
    Sketcher.Constraint("DistanceX", 1, 1, 1, 2, Q("167.6 mm")),
    Sketcher.Constraint("DistanceY", 0, 2, 0, 1, Q("7.6 mm")),
    Sketcher.Constraint("DistanceX", 0, 2, -1, 1, Q("83.8 mm")),
    Sketcher.Constraint("DistanceY", 0, 2, -1, 1, Q("101.3 mm")),
])
sketch17.setExpression("Constraints[8]", "Params.sketch17_width")
sketch17.setExpression("Constraints[9]", "Params.sketch17_height")
pocket9 = body.newObject("PartDesign::Pocket", "Pocket008")
pocket9.Profile = sketch17
pocket9.setExpression("Length", "Params.pocket9_length")

sketch18 = body.newObject("Sketcher::SketchObject", "Sketch017")
sketch18.AttachmentSupport = (doc.getObject("XY_Plane"), [""])
sketch18.MapMode = "FlatFace"
sketch18.AttachmentOffset = App.Placement(V(0, 0, 15), App.Rotation())
sketch18.addGeometry([
    Part.LineSegment(V(-76.2, -83.7, 0), V(-76.2, -93.7, 0)),
    Part.LineSegment(V(-76.2, -93.7, 0), V(-66.2, -93.7, 0)),
    Part.LineSegment(V(-66.2, -93.7, 0), V(-66.2, -83.7, 0)),
    Part.LineSegment(V(-66.2, -83.7, 0), V(-76.2, -83.7, 0)),
    Part.LineSegment(V(66.2, -83.7, 0), V(66.2, -93.7, 0)),
    Part.LineSegment(V(66.2, -93.7, 0), V(76.2, -93.7, 0)),
    Part.LineSegment(V(76.2, -93.7, 0), V(76.2, -83.7, 0)),
    Part.LineSegment(V(76.2, -83.7, 0), V(66.2, -83.7, 0)),
], False)
sketch18.addConstraint([
    Sketcher.Constraint("Coincident", 0, 2, 1, 1),
    Sketcher.Constraint("Coincident", 1, 2, 2, 1),
    Sketcher.Constraint("Coincident", 2, 2, 3, 1),
    Sketcher.Constraint("Coincident", 3, 2, 0, 1),
    Sketcher.Constraint("Coincident", 4, 2, 5, 1),
    Sketcher.Constraint("Coincident", 5, 2, 6, 1),
    Sketcher.Constraint("Coincident", 6, 2, 7, 1),
    Sketcher.Constraint("Coincident", 7, 2, 4, 1),
    Sketcher.Constraint("Vertical", 0),
    Sketcher.Constraint("Horizontal", 1),
    Sketcher.Constraint("Vertical", 2),
    Sketcher.Constraint("Horizontal", 3),
    Sketcher.Constraint("Vertical", 4),
    Sketcher.Constraint("Horizontal", 5),
    Sketcher.Constraint("Vertical", 6),
    Sketcher.Constraint("Horizontal", 7),
    Sketcher.Constraint("Symmetric", 1, 2, 4, 2, -2),
    Sketcher.Constraint("Symmetric", 3, 2, 6, 2, -2),
    Sketcher.Constraint("Equal", 7, 0),
    Sketcher.Constraint("DistanceX", 1, 1, 1, 2, Q("10 mm")),
    Sketcher.Constraint("DistanceX", 0, 2, -1, 1, Q("76.2 mm")),
    Sketcher.Constraint("DistanceY", 0, 2, -1, 1, Q("93.7 mm")),
])
sketch18.setExpression("Constraints[19]", "Params.sketch18_width")
pocket10 = body.newObject("PartDesign::Pocket", "Pocket009")
pocket10.Profile = sketch18
pocket10.setExpression("Length", "Params.pocket10_length")

sketch19 = body.newObject("Sketcher::SketchObject", "Sketch018")
sketch19.AttachmentSupport = (doc.getObject("XY_Plane"), [""])
sketch19.MapMode = "FlatFace"
sketch19.AttachmentOffset = App.Placement(V(0, 0, 4), App.Rotation())
sketch19.addGeometry([
    Part.ArcOfCircle(Part.Circle(V(66.200001, -83.700001, 0), V(0, 0, 1), 8.799999), math.radians(-90.000007), math.radians(0.000007)),
    Part.LineSegment(V(66.2, -92.5, 0), V(66.2, -93.7, 0)),
    Part.ArcOfCircle(Part.Circle(V(66.200001, -83.700001, 0), V(0, 0, 1), 9.999999), math.radians(-90.000004), math.radians(0.000004)),
    Part.LineSegment(V(76.2, -83.7, 0), V(75, -83.7, 0)),
    Part.ArcOfCircle(Part.Circle(V(-66.200001, -83.700001, 0), V(0, 0, 1), 8.799999), math.radians(179.999993), math.radians(270.000007)),
    Part.LineSegment(V(-75, -83.7, 0), V(-76.2, -83.7, 0)),
    Part.ArcOfCircle(Part.Circle(V(-66.200001, -83.700001, 0), V(0, 0, 1), 9.999999), math.radians(179.999996), math.radians(270.000004)),
    Part.LineSegment(V(-66.2, -93.7, 0), V(-66.2, -92.5, 0)),
], False)
sketch19.addConstraint([
    Sketcher.Constraint("Coincident", 0, 1, 1, 1),
    Sketcher.Constraint("Coincident", 1, 2, 2, 1),
    Sketcher.Constraint("Coincident", 2, 2, 3, 1),
    Sketcher.Constraint("Coincident", 3, 2, 0, 2),
    Sketcher.Constraint("Coincident", 4, 1, 5, 1),
    Sketcher.Constraint("Coincident", 5, 2, 6, 1),
    Sketcher.Constraint("Coincident", 6, 2, 7, 1),
    Sketcher.Constraint("Coincident", 7, 2, 4, 2),
    Sketcher.Constraint("Vertical", 1),
    Sketcher.Constraint("Horizontal", 3),
    Sketcher.Constraint("Horizontal", 5),
    Sketcher.Constraint("Vertical", 7),
    Sketcher.Constraint("Coincident", 2, 3, 0, 3),
    Sketcher.Constraint("Coincident", 6, 3, 4, 3),
    Sketcher.Constraint("Equal", 0, 4),
    Sketcher.Constraint("Equal", 2, 6),
    Sketcher.Constraint("Symmetric", 0, 3, 4, 3, -2),
    Sketcher.Constraint("Horizontal", 6, 3, 2, 2),
    Sketcher.Constraint("Horizontal", 3, 2, 4, 1),
    Sketcher.Constraint("Vertical", 2, 3, 0, 1),
    Sketcher.Constraint("Vertical", 4, 3, 6, 2),
    Sketcher.Constraint("Radius", 2, Q("9.999999 mm")),
    Sketcher.Constraint("Radius", 0, Q("8.799999 mm")),
    Sketcher.Constraint("DistanceX", -1, 1, 3, 2, Q("75 mm")),
    Sketcher.Constraint("DistanceY", 0, 3, -1, 1, Q("83.700001 mm")),
])
sketch19.setExpression("Constraints[21]", "Params.sketch19_radius")
sketch19.setExpression("Constraints[22]", "Params.sketch19_radius2")
pad9 = body.newObject("PartDesign::Pad", "Pad008")
pad9.Profile = sketch19
pad9.setExpression("Length", "Params.pad9_length")

sketch20 = body.newObject("Sketcher::SketchObject", "Sketch019")
sketch20.AttachmentSupport = (doc.getObject("YZ_Plane"), [""])
sketch20.MapMode = "FlatFace"
sketch20.AttachmentOffset = App.Placement(V(0, 0, -85), App.Rotation())
sketch20.addGeometry([
    Part.LineSegment(V(67.5, 15, 0), V(67.5, 0, 0)),
    Part.LineSegment(V(67.5, 0, 0), V(-102.5, 0, 0)),
    Part.LineSegment(V(-102.5, 0, 0), V(-102.5, 15, 0)),
    Part.LineSegment(V(-102.5, 15, 0), V(67.5, 15, 0)),
], False)
sketch20.addConstraint([
    Sketcher.Constraint("Coincident", 0, 2, 1, 1),
    Sketcher.Constraint("Coincident", 1, 2, 2, 1),
    Sketcher.Constraint("Coincident", 2, 2, 3, 1),
    Sketcher.Constraint("Coincident", 3, 2, 0, 1),
    Sketcher.Constraint("Vertical", 0),
    Sketcher.Constraint("Horizontal", 1),
    Sketcher.Constraint("Vertical", 2),
    Sketcher.Constraint("Horizontal", 3),
    Sketcher.Constraint("PointOnObject", 0, 2, -1),
    Sketcher.Constraint("DistanceX", 1, 2, 1, 1, Q("170 mm")),
    Sketcher.Constraint("DistanceY", 0, 2, 0, 1, Q("15 mm")),
    Sketcher.Constraint("DistanceX", -1, 1, 0, 2, Q("67.5 mm")),
])
sketch20.setExpression("Constraints[9]", "Params.sketch20_width")
sketch20.setExpression("Constraints[10]", "Params.sketch20_height")
pad10 = body.newObject("PartDesign::Pad", "Pad009")
pad10.Profile = sketch20
pad10.setExpression("Length", "Params.pad10_length")
pad10.Reversed = True

sketch21 = body.newObject("Sketcher::SketchObject", "Sketch020")
sketch21.AttachmentSupport = (doc.getObject("XZ_Plane"), [""])
sketch21.MapMode = "FlatFace"
sketch21.AttachmentOffset = App.Placement(V(0, 0, 102.5), App.Rotation())
sketch21.addGeometry([
    Part.LineSegment(V(-86.8, 15, 0), V(-86.8, 0, 0)),
    Part.LineSegment(V(-86.8, 0, 0), V(85, 0, 0)),
    Part.LineSegment(V(85, 0, 0), V(85, 15, 0)),
    Part.LineSegment(V(85, 15, 0), V(-86.8, 15, 0)),
], False)
sketch21.addConstraint([
    Sketcher.Constraint("Coincident", 0, 2, 1, 1),
    Sketcher.Constraint("Coincident", 1, 2, 2, 1),
    Sketcher.Constraint("Coincident", 2, 2, 3, 1),
    Sketcher.Constraint("Coincident", 3, 2, 0, 1),
    Sketcher.Constraint("Vertical", 0),
    Sketcher.Constraint("Horizontal", 1),
    Sketcher.Constraint("Vertical", 2),
    Sketcher.Constraint("Horizontal", 3),
    Sketcher.Constraint("PointOnObject", 0, 2, -1),
    Sketcher.Constraint("DistanceY", 0, 2, 0, 1, Q("15 mm")),
    Sketcher.Constraint("DistanceX", 1, 1, 1, 2, Q("171.8 mm")),
    Sketcher.Constraint("DistanceX", -1, 1, 1, 2, Q("85 mm")),
])
sketch21.setExpression("Constraints[9]", "Params.sketch21_height")
sketch21.setExpression("Constraints[10]", "Params.sketch21_width")
pad11 = body.newObject("PartDesign::Pad", "Pad010")
pad11.Profile = sketch21
pad11.setExpression("Length", "Params.pad11_length")

sketch22 = body.newObject("Sketcher::SketchObject", "Sketch021")
sketch22.AttachmentSupport = (doc.getObject("YZ_Plane"), [""])
sketch22.MapMode = "FlatFace"
sketch22.AttachmentOffset = App.Placement(V(0, 0, 85), App.Rotation())
sketch22.addGeometry([
    Part.LineSegment(V(-104.3, 15, 0), V(-104.3, 0, 0)),
    Part.LineSegment(V(-104.3, 0, 0), V(67.5, 0, 0)),
    Part.LineSegment(V(67.5, 0, 0), V(67.5, 15, 0)),
    Part.LineSegment(V(67.5, 15, 0), V(-104.3, 15, 0)),
], False)
sketch22.addConstraint([
    Sketcher.Constraint("Coincident", 0, 2, 1, 1),
    Sketcher.Constraint("Coincident", 1, 2, 2, 1),
    Sketcher.Constraint("Coincident", 2, 2, 3, 1),
    Sketcher.Constraint("Coincident", 3, 2, 0, 1),
    Sketcher.Constraint("Vertical", 0),
    Sketcher.Constraint("Horizontal", 1),
    Sketcher.Constraint("Vertical", 2),
    Sketcher.Constraint("Horizontal", 3),
    Sketcher.Constraint("PointOnObject", 0, 2, -1),
    Sketcher.Constraint("DistanceY", 0, 2, 0, 1, Q("15 mm")),
    Sketcher.Constraint("DistanceX", 1, 1, 1, 2, Q("171.8 mm")),
    Sketcher.Constraint("DistanceX", 0, 2, -1, 1, Q("104.3 mm")),
])
sketch22.setExpression("Constraints[9]", "Params.sketch22_height")
sketch22.setExpression("Constraints[10]", "Params.sketch22_width")
pad12 = body.newObject("PartDesign::Pad", "Pad011")
pad12.Profile = sketch22
pad12.setExpression("Length", "Params.pad12_length")

doc.recompute()
